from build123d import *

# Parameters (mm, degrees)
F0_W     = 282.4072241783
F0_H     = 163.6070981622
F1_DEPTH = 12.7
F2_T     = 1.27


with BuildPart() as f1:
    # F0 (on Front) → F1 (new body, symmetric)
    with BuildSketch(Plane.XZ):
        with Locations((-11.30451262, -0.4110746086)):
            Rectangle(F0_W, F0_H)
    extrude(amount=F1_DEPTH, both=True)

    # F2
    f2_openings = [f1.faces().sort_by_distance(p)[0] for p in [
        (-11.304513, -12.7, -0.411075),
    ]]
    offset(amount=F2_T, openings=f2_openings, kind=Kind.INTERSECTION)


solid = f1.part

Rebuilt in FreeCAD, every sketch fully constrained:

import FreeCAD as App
import Part
import Sketcher

V = App.Vector
Q = App.Units.Quantity


def faces_at(feature, points):
    """Names of the faces that lie closest to the given points."""
    faces = feature.Shape.Faces
    near = lambda p: min(range(len(faces)), key=lambda i: faces[i].distToShape(Part.Vertex(*p))[0])
    return sorted({f"Face{near(p) + 1}" for p in points})

doc = App.newDocument("Part")
params = doc.addObject("Spreadsheet::Sheet", "Params")
for row, (alias, value) in enumerate([
    ("pad1_length", "1 in"),
    ("thickness_wall", "0.05 in"),
], start=1):
    params.set(f"A{row}", alias)
    params.set(f"B{row}", "=" + value)
    params.setAlias(f"B{row}", alias)

body = doc.addObject("PartDesign::Body", "Body")

sketch1 = body.newObject("Sketcher::SketchObject", "Sketch")
sketch1.AttachmentSupport = (doc.getObject("XZ_Plane"), [""])
sketch1.MapMode = "FlatFace"
sketch1.addGeometry([
    Part.LineSegment(V(-152.508125, 81.392474, 0), V(-152.508125, -82.214624, 0)),
    Part.LineSegment(V(-152.508125, -82.214624, 0), V(129.899099, -82.214624, 0)),
    Part.LineSegment(V(129.899099, -82.214624, 0), V(129.899099, 81.392474, 0)),
    Part.LineSegment(V(129.899099, 81.392474, 0), V(-152.508125, 81.392474, 0)),
], False)
sketch1.addConstraint([
    Sketcher.Constraint("Coincident", 0, 2, 1, 1),
    Sketcher.Constraint("Coincident", 1, 2, 2, 1),
    Sketcher.Constraint("Coincident", 2, 2, 3, 1),
    Sketcher.Constraint("Coincident", 3, 2, 0, 1),
    Sketcher.Constraint("Vertical", 0),
    Sketcher.Constraint("Horizontal", 1),
    Sketcher.Constraint("Vertical", 2),
    Sketcher.Constraint("Horizontal", 3),
    Sketcher.Constraint("DistanceY", 0, 2, 0, 1, Q("163.607098 mm")),
    Sketcher.Constraint("DistanceX", -1, 1, 1, 2, Q("129.899099 mm")),
    Sketcher.Constraint("DistanceX", 1, 1, 1, 2, Q("282.407224 mm")),
    Sketcher.Constraint("DistanceY", 0, 2, -1, 1, Q("82.214624 mm")),
])
pad1 = body.newObject("PartDesign::Pad", "Pad")
pad1.Profile = sketch1
pad1.setExpression("Length", "Params.pad1_length")
pad1.Midplane = True
doc.recompute()

thickness = body.newObject("PartDesign::Thickness", "Thickness")
thickness.Base = (pad1, faces_at(pad1, [(-11.305, -12.7, -0.411)]))
thickness.setExpression("Value", "Params.thickness_wall")
thickness.Reversed = False
thickness.Join = "Intersection"

doc.recompute()
